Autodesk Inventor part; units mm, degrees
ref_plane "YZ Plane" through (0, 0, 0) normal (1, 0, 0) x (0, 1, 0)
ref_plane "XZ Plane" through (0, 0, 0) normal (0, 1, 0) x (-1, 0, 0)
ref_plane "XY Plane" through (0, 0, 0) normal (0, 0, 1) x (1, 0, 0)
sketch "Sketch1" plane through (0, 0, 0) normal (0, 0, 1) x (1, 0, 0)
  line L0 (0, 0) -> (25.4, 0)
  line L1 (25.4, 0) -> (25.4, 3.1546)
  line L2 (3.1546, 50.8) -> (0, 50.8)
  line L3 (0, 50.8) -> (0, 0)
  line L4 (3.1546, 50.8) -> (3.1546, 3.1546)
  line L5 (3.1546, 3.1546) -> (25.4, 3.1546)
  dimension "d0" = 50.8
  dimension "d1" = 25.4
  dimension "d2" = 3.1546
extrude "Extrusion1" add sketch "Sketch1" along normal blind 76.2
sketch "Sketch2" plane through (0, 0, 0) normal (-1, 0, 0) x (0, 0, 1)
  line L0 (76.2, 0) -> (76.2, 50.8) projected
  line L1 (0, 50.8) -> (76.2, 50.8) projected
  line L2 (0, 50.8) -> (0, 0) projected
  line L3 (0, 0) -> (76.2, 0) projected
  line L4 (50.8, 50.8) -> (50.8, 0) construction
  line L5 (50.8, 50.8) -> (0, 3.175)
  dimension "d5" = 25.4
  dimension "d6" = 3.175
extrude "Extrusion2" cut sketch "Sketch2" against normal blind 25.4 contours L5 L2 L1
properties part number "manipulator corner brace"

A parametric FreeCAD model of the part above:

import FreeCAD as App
import Part
import Sketcher
from FreeCAD import Vector
Q = App.Units.Quantity

doc = App.newDocument("Part")
body = doc.addObject("PartDesign::Body", "Body")

# Sketch on XY plane
sketch1 = body.newObject("Sketcher::SketchObject", "Sketch")
sketch1.AttachmentSupport = (doc.getObject("XY_Plane"), [""])
sketch1.MapMode = "FlatFace"
sketch1.addGeometry([
    Part.LineSegment(Vector(0, 50.8, 0), Vector(0, 0, 0)),  # 0
    Part.LineSegment(Vector(0, 0, 0), Vector(25.4, 0, 0)),  # 1
    Part.LineSegment(Vector(25.4, 0, 0), Vector(25.4, 3.2, 0)),  # 2
    Part.LineSegment(Vector(25.4, 3.2, 0), Vector(3.2, 3.2, 0)),  # 3
    Part.LineSegment(Vector(3.2, 3.2, 0), Vector(3.2, 50.8, 0)),  # 4
    Part.LineSegment(Vector(3.2, 50.8, 0), Vector(0, 50.8, 0)),  # 5
], False)
sketch1.addConstraint([
    Sketcher.Constraint("Coincident", 0, 2, 1, 1),
    Sketcher.Constraint("Coincident", 1, 2, 2, 1),
    Sketcher.Constraint("Coincident", 2, 2, 3, 1),
    Sketcher.Constraint("Coincident", 3, 2, 4, 1),
    Sketcher.Constraint("Coincident", 4, 2, 5, 1),
    Sketcher.Constraint("Coincident", 5, 2, 0, 1),
    Sketcher.Constraint("Vertical", 0),
    Sketcher.Constraint("Horizontal", 1),
    Sketcher.Constraint("Vertical", 2),
    Sketcher.Constraint("Horizontal", 3),
    Sketcher.Constraint("Vertical", 4),
    Sketcher.Constraint("Horizontal", 5),
    Sketcher.Constraint("Coincident", 0, 2, -1, 1),
    Sketcher.Constraint("Equal", 5, 2),
    Sketcher.Constraint("DistanceX", 1, 1, 1, 2, Q("1 in")),
    Sketcher.Constraint("DistanceY", 0, 2, 0, 1, Q("2 in")),
    Sketcher.Constraint("DistanceX", 5, 2, 5, 1, Q("0.1242 in")),
])
pad1 = body.newObject("PartDesign::Pad", "Pad")
pad1.Profile = sketch1
pad1.Length = Q("3 in")

# Sketch on YZ plane
sketch2 = body.newObject("Sketcher::SketchObject", "Sketch001")
sketch2.AttachmentSupport = (doc.getObject("YZ_Plane"), [""])
sketch2.MapMode = "FlatFace"
sketch2.addGeometry([
    Part.LineSegment(Vector(3, 0, 0), Vector(51, 51, 0)),
    Part.LineSegment(Vector(51, 51, 0), Vector(51, 0, 0)),
    Part.LineSegment(Vector(51, 0, 0), Vector(3, 0, 0)),
], False)
sketch2.addConstraint([
    Sketcher.Constraint("Coincident", 0, 2, 1, 1),
    Sketcher.Constraint("Coincident", 1, 2, 2, 1),
    Sketcher.Constraint("Coincident", 2, 2, 0, 1),
    Sketcher.Constraint("Vertical", 1),
    Sketcher.Constraint("Horizontal", 2),
    Sketcher.Constraint("PointOnObject", 1, 2, -1),
    Sketcher.Constraint("DistanceY", 1, 2, 1, 1, Q("2 in")),
    Sketcher.Constraint("DistanceX", -1, 1, 2, 2, Q("0.125 in")),
    Sketcher.Constraint("DistanceX", -1, 1, 0, 2, Q("2 in")),
])
pocket1 = body.newObject("PartDesign::Pocket", "Pocket")
pocket1.Profile = sketch2
pocket1.Length = Q("1 in")
pocket1.Reversed = True

doc.recompute()
